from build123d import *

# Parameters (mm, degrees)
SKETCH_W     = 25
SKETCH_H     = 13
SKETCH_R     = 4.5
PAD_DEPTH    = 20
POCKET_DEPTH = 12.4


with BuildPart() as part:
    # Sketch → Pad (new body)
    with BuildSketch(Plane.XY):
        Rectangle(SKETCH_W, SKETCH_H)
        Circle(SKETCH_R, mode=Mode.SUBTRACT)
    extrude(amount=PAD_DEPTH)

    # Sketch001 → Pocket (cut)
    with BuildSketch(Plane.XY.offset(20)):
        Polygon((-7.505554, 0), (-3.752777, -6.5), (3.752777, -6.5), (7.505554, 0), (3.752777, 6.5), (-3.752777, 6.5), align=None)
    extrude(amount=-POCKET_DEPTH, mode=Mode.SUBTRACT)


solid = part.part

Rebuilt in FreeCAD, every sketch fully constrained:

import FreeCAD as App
import Part
import Sketcher
from FreeCAD import Vector
Q = App.Units.Quantity

doc = App.newDocument("Part")
body = doc.addObject("PartDesign::Body", "Body")

sketch1 = body.newObject("Sketcher::SketchObject", "Sketch")
sketch1.AttachmentSupport = (doc.getObject("XY_Plane"), [""])
sketch1.MapMode = "FlatFace"
sketch1.addGeometry(Part.LineSegment(Vector(-12.5, 6.5, 0), Vector(-12.5, -6.5, 0)), False)
sketch1.addGeometry(Part.LineSegment(Vector(-12.5, -6.5, 0), Vector(12.5, -6.5, 0)), False)
sketch1.addGeometry(Part.LineSegment(Vector(12.5, -6.5, 0), Vector(12.5, 6.5, 0)), False)
sketch1.addGeometry(Part.LineSegment(Vector(12.5, 6.5, 0), Vector(-12.5, 6.5, 0)), False)
sketch1.addGeometry(Part.Circle(Vector(0, 0, 0), Vector(0, 0, 1), 4.5), False)
sketch1.addConstraint(Sketcher.Constraint("Coincident", 0, 2, 1, 1))
sketch1.addConstraint(Sketcher.Constraint("Coincident", 1, 2, 2, 1))
sketch1.addConstraint(Sketcher.Constraint("Coincident", 2, 2, 3, 1))
sketch1.addConstraint(Sketcher.Constraint("Coincident", 3, 2, 0, 1))
sketch1.addConstraint(Sketcher.Constraint("Vertical", 0))
sketch1.addConstraint(Sketcher.Constraint("Horizontal", 1))
sketch1.addConstraint(Sketcher.Constraint("Vertical", 2))
sketch1.addConstraint(Sketcher.Constraint("Horizontal", 3))
sketch1.addConstraint(Sketcher.Constraint("Coincident", 4, 3, -1, 1))
sketch1.addConstraint(Sketcher.Constraint("Symmetric", 0, 2, 2, 2, -1, 1))
sketch1.addConstraint(Sketcher.Constraint("Diameter", 4, 9.0))
sketch1.addConstraint(Sketcher.Constraint("DistanceX", 1, 1, 1, 2, 25.0))
sketch1.addConstraint(Sketcher.Constraint("DistanceY", 0, 2, 0, 1, 13.0))
pad1 = body.newObject("PartDesign::Pad", "Pad")
pad1.Profile = sketch1
pad1.Length = 20

sketch2 = body.newObject("Sketcher::SketchObject", "Sketch001")
sketch2.AttachmentSupport = (doc.getObject("XY_Plane"), [""])
sketch2.MapMode = "FlatFace"
sketch2.AttachmentOffset = App.Placement(Vector(0, 0, 20), App.Rotation())
sketch2.addGeometry(Part.LineSegment(Vector(-8, 0, 0), Vector(-4, -6, 0)), False)
sketch2.addGeometry(Part.LineSegment(Vector(-4, -6, 0), Vector(4, -6, 0)), False)
sketch2.addGeometry(Part.LineSegment(Vector(4, -6, 0), Vector(8, 0, 0)), False)
sketch2.addGeometry(Part.LineSegment(Vector(8, 0, 0), Vector(4, 6, 0)), False)
sketch2.addGeometry(Part.LineSegment(Vector(4, 6, 0), Vector(-4, 6, 0)), False)
sketch2.addGeometry(Part.LineSegment(Vector(-4, 6, 0), Vector(-8, 0, 0)), False)
sketch2.addConstraint(Sketcher.Constraint("Coincident", 0, 2, 1, 1))
sketch2.addConstraint(Sketcher.Constraint("Coincident", 1, 2, 2, 1))
sketch2.addConstraint(Sketcher.Constraint("Coincident", 2, 2, 3, 1))
sketch2.addConstraint(Sketcher.Constraint("Coincident", 3, 2, 4, 1))
sketch2.addConstraint(Sketcher.Constraint("Coincident", 4, 2, 5, 1))
sketch2.addConstraint(Sketcher.Constraint("Coincident", 5, 2, 0, 1))
sketch2.addConstraint(Sketcher.Constraint("Horizontal", 1))
sketch2.addConstraint(Sketcher.Constraint("Horizontal", 4))
sketch2.addConstraint(Sketcher.Constraint("Symmetric", 0, 2, 3, 2, -1, 1))
sketch2.addConstraint(Sketcher.Constraint("Symmetric", 2, 2, 5, 2, -1, 1))
sketch2.addConstraint(Sketcher.Constraint("PointOnObject", 2, 2, -1))
sketch2.addConstraint(Sketcher.Constraint("Parallel", 2, 5))
sketch2.addConstraint(Sketcher.Constraint("Vertical", 1, 2, 3, 2))
sketch2.addConstraint(Sketcher.Constraint("Angle", 0, Q("-59.999998 deg")))
sketch2.addConstraint(Sketcher.Constraint("DistanceY", 1, 2, 3, 2, 13.0))
sketch2.addConstraint(Sketcher.Constraint("DistanceX", 1, 1, 1, 2, 7.505554))
pocket1 = body.newObject("PartDesign::Pocket", "Pocket")
pocket1.Profile = sketch2
pocket1.Length = 12.4

doc.recompute()
